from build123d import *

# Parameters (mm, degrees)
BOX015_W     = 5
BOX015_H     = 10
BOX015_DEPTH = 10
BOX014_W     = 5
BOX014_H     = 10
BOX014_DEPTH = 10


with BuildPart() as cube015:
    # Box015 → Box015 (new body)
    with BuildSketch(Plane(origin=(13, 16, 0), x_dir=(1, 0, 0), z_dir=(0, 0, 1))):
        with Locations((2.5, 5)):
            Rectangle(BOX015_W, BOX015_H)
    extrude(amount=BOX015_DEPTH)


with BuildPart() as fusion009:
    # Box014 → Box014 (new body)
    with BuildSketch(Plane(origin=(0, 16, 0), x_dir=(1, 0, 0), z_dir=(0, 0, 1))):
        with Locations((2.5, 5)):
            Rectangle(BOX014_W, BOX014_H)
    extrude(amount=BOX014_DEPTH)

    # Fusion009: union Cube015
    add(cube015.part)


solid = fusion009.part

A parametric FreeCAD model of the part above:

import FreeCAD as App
import Part
import Sketcher

V = App.Vector


def add_polygon(sketch, points):
    """Adds a closed chain of lines whose ends are joined by coincident constraints."""
    first, n = sketch.GeometryCount, len(points)
    for a, b in zip(points, points[1:] + points[:1]):
        sketch.addGeometry(Part.LineSegment(App.Vector(*a, 0), App.Vector(*b, 0)), False)
    for i in range(n):
        sketch.addConstraint(Sketcher.Constraint("Coincident", first + i, 2, first + (i + 1) % n, 1))

doc = App.newDocument("Part")
body = doc.addObject("PartDesign::Body", "Body")

sketch1 = body.newObject("Sketcher::SketchObject", "Sketch")
sketch1.AttachmentSupport = (doc.getObject("XY_Plane"), [""])
sketch1.MapMode = "FlatFace"
add_polygon(sketch1, [(13, 26), (13, 16), (18, 16), (18, 26)])
sketch1.addConstraint([
    Sketcher.Constraint("Vertical", 0),
    Sketcher.Constraint("Horizontal", 1),
    Sketcher.Constraint("Vertical", 2),
    Sketcher.Constraint("Horizontal", 3),
    Sketcher.Constraint("DistanceX", 1, 1, 1, 2, 5.0),
    Sketcher.Constraint("DistanceY", 0, 2, 0, 1, 10.0),
    Sketcher.Constraint("DistanceX", -1, 1, 0, 2, 13.0),
    Sketcher.Constraint("DistanceY", -1, 1, 0, 2, 16.0),
])
pad1 = body.newObject("PartDesign::Pad", "Pad")
pad1.Profile = sketch1
pad1.Length = 10
body2 = doc.addObject("PartDesign::Body", "Body001")
body2.AllowCompound = True

sketch2 = body2.newObject("Sketcher::SketchObject", "Sketch001")
sketch2.AttachmentSupport = (doc.getObject("XY_Plane001"), [""])
sketch2.MapMode = "FlatFace"
add_polygon(sketch2, [(0, 26), (0, 16), (5, 16), (5, 26)])
sketch2.addConstraint([
    Sketcher.Constraint("Vertical", 0),
    Sketcher.Constraint("Horizontal", 1),
    Sketcher.Constraint("Vertical", 2),
    Sketcher.Constraint("Horizontal", 3),
    Sketcher.Constraint("PointOnObject", 0, 2, -2),
    Sketcher.Constraint("DistanceX", 1, 1, 1, 2, 5.0),
    Sketcher.Constraint("DistanceY", 0, 2, 0, 1, 10.0),
    Sketcher.Constraint("DistanceY", -1, 1, 0, 2, 16.0),
])
pad2 = body2.newObject("PartDesign::Pad", "Pad001")
pad2.Profile = sketch2
pad2.Length = 10
doc.recompute()

boolean = body2.newObject("PartDesign::Boolean", "Boolean")
boolean.Type = "Fuse"
boolean.addObjects([body])

doc.recompute()
